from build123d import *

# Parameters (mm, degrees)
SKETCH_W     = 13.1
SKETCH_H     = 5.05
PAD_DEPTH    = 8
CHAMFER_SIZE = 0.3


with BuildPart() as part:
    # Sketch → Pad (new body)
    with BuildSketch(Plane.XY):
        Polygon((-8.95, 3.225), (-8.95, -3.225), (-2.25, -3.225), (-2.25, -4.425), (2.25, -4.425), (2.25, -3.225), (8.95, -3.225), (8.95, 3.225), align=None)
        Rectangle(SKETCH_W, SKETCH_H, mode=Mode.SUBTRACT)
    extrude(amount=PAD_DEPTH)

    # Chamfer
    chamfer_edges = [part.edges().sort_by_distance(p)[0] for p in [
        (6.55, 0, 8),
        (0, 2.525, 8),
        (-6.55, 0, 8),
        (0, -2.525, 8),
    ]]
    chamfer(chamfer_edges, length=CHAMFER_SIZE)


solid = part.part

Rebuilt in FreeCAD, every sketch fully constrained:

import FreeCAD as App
import Part
import Sketcher
from FreeCAD import Vector
Q = App.Units.Quantity


def edges_at(feature, points):
    """Names of the edges that pass closest to the given points."""
    edges = feature.Shape.Edges
    near = lambda p: min(range(len(edges)), key=lambda i: edges[i].distToShape(Part.Vertex(*p))[0])
    return sorted({f"Edge{near(p) + 1}" for p in points})

doc = App.newDocument("Part")
body = doc.addObject("PartDesign::Body", "Body")

sketch1 = body.newObject("Sketcher::SketchObject", "Sketch")
sketch1.AttachmentSupport = (doc.getObject("XY_Plane"), [""])
sketch1.MapMode = "FlatFace"
sketch1.addGeometry(Part.LineSegment(Vector(-8.9, 3.2, 0), Vector(-8.9, -3.2, 0)), False)
sketch1.addGeometry(Part.LineSegment(Vector(-8.9, -3.2, 0), Vector(-2.2, -3.2, 0)), False)
sketch1.addGeometry(Part.LineSegment(Vector(-2.2, -3.2, 0), Vector(-2.2, -4.4, 0)), False)
sketch1.addGeometry(Part.LineSegment(Vector(-2.2, -4.4, 0), Vector(2.2, -4.4, 0)), False)
sketch1.addGeometry(Part.LineSegment(Vector(2.2, -4.4, 0), Vector(2.2, -3.2, 0)), False)
sketch1.addGeometry(Part.LineSegment(Vector(2.2, -3.2, 0), Vector(8.9, -3.2, 0)), False)
sketch1.addGeometry(Part.LineSegment(Vector(8.9, -3.2, 0), Vector(8.9, 3.2, 0)), False)
sketch1.addGeometry(Part.LineSegment(Vector(8.9, 3.2, 0), Vector(-8.9, 3.2, 0)), False)
sketch1.addGeometry(Part.LineSegment(Vector(6.5, -2.5, 0), Vector(-6.5, -2.5, 0)), False)
sketch1.addGeometry(Part.LineSegment(Vector(-6.5, -2.5, 0), Vector(-6.5, 2.5, 0)), False)
sketch1.addGeometry(Part.LineSegment(Vector(-6.5, 2.5, 0), Vector(6.5, 2.5, 0)), False)
sketch1.addGeometry(Part.LineSegment(Vector(6.5, 2.5, 0), Vector(6.5, -2.5, 0)), False)
sketch1.addConstraint(Sketcher.Constraint("Coincident", 0, 2, 1, 1))
sketch1.addConstraint(Sketcher.Constraint("Coincident", 1, 2, 2, 1))
sketch1.addConstraint(Sketcher.Constraint("Coincident", 2, 2, 3, 1))
sketch1.addConstraint(Sketcher.Constraint("Coincident", 3, 2, 4, 1))
sketch1.addConstraint(Sketcher.Constraint("Coincident", 4, 2, 5, 1))
sketch1.addConstraint(Sketcher.Constraint("Coincident", 5, 2, 6, 1))
sketch1.addConstraint(Sketcher.Constraint("Coincident", 6, 2, 7, 1))
sketch1.addConstraint(Sketcher.Constraint("Coincident", 7, 2, 0, 1))
sketch1.addConstraint(Sketcher.Constraint("Coincident", 8, 2, 9, 1))
sketch1.addConstraint(Sketcher.Constraint("Coincident", 9, 2, 10, 1))
sketch1.addConstraint(Sketcher.Constraint("Coincident", 10, 2, 11, 1))
sketch1.addConstraint(Sketcher.Constraint("Coincident", 11, 2, 8, 1))
sketch1.addConstraint(Sketcher.Constraint("Vertical", 0))
sketch1.addConstraint(Sketcher.Constraint("Horizontal", 1))
sketch1.addConstraint(Sketcher.Constraint("Vertical", 2))
sketch1.addConstraint(Sketcher.Constraint("Horizontal", 3))
sketch1.addConstraint(Sketcher.Constraint("Vertical", 4))
sketch1.addConstraint(Sketcher.Constraint("Horizontal", 5))
sketch1.addConstraint(Sketcher.Constraint("Vertical", 6))
sketch1.addConstraint(Sketcher.Constraint("Horizontal", 7))
sketch1.addConstraint(Sketcher.Constraint("Horizontal", 8))
sketch1.addConstraint(Sketcher.Constraint("Vertical", 9))
sketch1.addConstraint(Sketcher.Constraint("Horizontal", 10))
sketch1.addConstraint(Sketcher.Constraint("Vertical", 11))
sketch1.addConstraint(Sketcher.Constraint("Symmetric", 0, 2, 6, 2, -1, 1))
sketch1.addConstraint(Sketcher.Constraint("Symmetric", 8, 2, 10, 2, -1, 1))
sketch1.addConstraint(Sketcher.Constraint("Symmetric", 1, 2, 4, 2, -2))
sketch1.addConstraint(Sketcher.Constraint("DistanceX", 1, 1, 1, 2, Q("6.7 mm")))
sketch1.addConstraint(Sketcher.Constraint("DistanceX", 3, 1, 3, 2, Q("4.5 mm")))
sketch1.addConstraint(Sketcher.Constraint("DistanceX", 8, 2, 8, 1, Q("13.1 mm")))
sketch1.addConstraint(Sketcher.Constraint("DistanceY", 2, 2, 2, 1, Q("1.2 mm")))
sketch1.addConstraint(Sketcher.Constraint("DistanceY", 0, 2, 0, 1, Q("6.45 mm")))
sketch1.addConstraint(Sketcher.Constraint("DistanceY", 9, 1, 9, 2, Q("5.05 mm")))
pad1 = body.newObject("PartDesign::Pad", "Pad")
pad1.Profile = sketch1
pad1.Length = 8
doc.recompute()

chamfer = body.newObject("PartDesign::Chamfer", "Chamfer")
chamfer.Base = (pad1, edges_at(pad1, [
    (6.55, 0, 8),
    (0, 2.525, 8),
    (-6.55, 0, 8),
    (0, -2.525, 8),
]))
chamfer.Size = 0.3

doc.recompute()
